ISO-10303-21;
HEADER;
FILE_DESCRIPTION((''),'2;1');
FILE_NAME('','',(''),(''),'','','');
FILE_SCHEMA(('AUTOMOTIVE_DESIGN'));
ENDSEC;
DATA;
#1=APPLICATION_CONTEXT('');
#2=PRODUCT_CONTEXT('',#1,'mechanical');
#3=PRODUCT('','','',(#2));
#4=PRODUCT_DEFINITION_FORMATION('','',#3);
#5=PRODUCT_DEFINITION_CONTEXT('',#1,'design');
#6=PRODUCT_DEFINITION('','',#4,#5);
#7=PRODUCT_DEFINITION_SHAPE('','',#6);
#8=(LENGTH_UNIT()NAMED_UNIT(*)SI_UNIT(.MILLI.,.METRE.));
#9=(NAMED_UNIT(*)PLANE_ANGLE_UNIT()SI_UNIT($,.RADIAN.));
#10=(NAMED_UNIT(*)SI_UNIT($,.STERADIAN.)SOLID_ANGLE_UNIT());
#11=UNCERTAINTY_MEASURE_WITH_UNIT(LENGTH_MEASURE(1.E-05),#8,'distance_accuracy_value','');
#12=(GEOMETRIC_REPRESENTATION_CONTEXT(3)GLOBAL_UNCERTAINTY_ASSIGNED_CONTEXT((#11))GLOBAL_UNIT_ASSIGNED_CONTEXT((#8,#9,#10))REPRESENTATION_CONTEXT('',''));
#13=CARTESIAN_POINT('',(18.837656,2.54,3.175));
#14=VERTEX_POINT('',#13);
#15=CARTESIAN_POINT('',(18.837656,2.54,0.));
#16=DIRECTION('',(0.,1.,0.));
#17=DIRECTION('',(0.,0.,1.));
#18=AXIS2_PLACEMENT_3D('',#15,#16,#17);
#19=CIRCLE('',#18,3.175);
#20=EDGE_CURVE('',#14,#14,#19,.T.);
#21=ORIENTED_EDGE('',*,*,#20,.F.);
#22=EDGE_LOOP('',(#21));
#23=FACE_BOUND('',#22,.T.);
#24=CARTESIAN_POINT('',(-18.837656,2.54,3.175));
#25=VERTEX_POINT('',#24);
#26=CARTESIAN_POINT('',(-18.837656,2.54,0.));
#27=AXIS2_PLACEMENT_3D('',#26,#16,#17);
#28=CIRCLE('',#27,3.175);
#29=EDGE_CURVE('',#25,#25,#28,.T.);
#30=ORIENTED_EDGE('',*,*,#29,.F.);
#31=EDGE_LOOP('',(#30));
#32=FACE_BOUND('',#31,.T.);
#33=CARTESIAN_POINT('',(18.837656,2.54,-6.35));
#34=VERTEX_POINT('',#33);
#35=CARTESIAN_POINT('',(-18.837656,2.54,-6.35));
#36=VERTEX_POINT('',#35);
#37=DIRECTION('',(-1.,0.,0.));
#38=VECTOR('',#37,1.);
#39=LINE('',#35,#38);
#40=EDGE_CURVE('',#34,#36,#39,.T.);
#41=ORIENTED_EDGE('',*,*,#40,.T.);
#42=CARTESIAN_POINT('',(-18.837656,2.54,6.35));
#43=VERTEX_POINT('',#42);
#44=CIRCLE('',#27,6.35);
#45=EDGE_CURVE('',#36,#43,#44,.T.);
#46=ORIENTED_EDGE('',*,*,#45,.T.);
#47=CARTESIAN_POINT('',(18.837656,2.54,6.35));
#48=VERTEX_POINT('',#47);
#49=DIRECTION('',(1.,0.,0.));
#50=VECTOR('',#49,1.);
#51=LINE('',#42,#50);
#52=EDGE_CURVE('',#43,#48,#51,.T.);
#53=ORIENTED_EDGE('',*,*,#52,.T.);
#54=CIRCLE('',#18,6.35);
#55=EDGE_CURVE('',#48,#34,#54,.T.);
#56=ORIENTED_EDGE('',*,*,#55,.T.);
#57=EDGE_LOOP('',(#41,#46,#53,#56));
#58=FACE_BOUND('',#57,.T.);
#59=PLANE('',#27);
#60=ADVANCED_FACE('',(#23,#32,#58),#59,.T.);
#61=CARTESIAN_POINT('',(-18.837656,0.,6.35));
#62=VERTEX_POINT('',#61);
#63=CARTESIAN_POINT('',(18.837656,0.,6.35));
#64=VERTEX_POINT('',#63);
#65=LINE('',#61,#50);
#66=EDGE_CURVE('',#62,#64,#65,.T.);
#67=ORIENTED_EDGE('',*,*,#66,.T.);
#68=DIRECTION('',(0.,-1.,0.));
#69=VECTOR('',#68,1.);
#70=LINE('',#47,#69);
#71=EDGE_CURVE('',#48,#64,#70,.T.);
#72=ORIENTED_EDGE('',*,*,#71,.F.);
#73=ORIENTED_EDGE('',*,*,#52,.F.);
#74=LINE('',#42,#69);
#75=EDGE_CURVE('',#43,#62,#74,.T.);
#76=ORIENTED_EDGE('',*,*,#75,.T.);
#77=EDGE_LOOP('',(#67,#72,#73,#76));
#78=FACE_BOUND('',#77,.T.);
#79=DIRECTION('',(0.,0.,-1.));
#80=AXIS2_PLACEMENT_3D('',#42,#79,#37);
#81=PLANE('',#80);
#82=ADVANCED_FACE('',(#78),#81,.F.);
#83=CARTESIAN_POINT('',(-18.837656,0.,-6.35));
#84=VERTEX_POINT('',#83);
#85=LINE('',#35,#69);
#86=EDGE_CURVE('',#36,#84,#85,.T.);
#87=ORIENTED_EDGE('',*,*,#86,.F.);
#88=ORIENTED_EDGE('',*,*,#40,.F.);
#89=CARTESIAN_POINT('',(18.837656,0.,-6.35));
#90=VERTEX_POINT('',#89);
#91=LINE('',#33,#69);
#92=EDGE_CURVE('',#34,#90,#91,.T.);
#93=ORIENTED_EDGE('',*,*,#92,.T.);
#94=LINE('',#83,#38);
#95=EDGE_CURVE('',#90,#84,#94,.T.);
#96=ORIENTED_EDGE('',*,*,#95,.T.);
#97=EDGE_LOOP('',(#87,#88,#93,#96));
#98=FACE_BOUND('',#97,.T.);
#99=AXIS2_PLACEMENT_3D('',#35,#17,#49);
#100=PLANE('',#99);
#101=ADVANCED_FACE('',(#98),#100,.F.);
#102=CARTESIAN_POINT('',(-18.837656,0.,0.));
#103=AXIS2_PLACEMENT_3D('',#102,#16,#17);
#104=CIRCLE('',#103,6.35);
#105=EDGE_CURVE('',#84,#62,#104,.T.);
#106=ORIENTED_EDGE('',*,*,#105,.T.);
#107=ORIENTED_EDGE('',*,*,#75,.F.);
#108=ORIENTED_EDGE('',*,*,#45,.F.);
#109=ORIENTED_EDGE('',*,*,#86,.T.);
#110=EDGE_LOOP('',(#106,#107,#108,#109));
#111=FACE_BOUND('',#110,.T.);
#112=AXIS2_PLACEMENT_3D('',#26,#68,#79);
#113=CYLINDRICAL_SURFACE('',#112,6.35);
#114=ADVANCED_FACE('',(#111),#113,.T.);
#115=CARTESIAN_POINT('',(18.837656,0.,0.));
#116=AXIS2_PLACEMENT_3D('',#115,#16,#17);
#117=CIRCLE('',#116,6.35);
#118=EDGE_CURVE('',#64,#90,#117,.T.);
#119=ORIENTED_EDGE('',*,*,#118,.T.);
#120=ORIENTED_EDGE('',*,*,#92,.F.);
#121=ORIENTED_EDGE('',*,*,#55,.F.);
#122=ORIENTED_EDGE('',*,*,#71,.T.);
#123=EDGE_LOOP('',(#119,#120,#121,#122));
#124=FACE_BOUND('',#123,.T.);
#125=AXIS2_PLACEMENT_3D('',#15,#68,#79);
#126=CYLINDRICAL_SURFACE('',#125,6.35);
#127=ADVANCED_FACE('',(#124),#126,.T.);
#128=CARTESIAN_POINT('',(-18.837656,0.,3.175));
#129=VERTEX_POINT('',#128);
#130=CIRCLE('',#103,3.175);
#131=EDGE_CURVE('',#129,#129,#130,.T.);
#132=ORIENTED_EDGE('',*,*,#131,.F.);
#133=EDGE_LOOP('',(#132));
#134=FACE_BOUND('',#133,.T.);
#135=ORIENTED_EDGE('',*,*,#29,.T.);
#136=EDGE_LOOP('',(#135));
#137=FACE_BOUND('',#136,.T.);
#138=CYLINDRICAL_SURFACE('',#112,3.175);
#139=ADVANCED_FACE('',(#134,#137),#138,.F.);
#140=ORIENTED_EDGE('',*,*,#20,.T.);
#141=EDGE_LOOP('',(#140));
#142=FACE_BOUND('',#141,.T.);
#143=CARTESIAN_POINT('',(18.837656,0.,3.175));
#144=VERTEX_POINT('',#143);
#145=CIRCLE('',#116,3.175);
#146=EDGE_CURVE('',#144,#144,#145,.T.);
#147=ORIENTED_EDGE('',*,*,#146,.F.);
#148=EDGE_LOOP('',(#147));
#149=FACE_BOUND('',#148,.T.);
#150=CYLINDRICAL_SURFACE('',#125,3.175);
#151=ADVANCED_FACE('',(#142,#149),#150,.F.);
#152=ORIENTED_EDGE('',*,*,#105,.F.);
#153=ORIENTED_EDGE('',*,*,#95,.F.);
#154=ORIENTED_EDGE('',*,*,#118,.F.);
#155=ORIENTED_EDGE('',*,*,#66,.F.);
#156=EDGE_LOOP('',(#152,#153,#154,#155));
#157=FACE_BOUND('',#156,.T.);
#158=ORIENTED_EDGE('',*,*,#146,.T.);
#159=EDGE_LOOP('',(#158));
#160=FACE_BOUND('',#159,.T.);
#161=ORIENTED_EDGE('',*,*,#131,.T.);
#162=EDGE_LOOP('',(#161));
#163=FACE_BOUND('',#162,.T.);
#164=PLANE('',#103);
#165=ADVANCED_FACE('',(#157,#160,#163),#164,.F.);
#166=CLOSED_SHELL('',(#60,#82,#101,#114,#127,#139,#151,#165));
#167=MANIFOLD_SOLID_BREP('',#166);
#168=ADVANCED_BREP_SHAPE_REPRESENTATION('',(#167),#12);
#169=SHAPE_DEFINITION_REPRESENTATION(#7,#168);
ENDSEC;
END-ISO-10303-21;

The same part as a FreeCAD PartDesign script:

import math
import FreeCAD as App
import Part
import Sketcher
Q = App.Units.Quantity

doc = App.newDocument("Part")
body = doc.addObject("PartDesign::Body", "Body")

# Sketch on XZ plane
sketch1 = body.newObject("Sketcher::SketchObject", "Sketch")
sketch1.AttachmentSupport = (doc.getObject("XZ_Plane"), [""])
sketch1.MapMode = "FlatFace"
sketch1.addGeometry([
    Part.LineSegment(App.Vector(18.837656, -6.35, 0), App.Vector(-18.837656, -6.35, 0)),  # 0
    Part.ArcOfCircle(Part.Circle(App.Vector(-18.837656, 0, 0), App.Vector(0, 0, 1), 6.35), math.radians(90), math.radians(270)),  # 1
    Part.LineSegment(App.Vector(-18.837656, 6.35, 0), App.Vector(18.837656, 6.35, 0)),  # 2
    Part.ArcOfCircle(Part.Circle(App.Vector(18.837656, 0, 0), App.Vector(0, 0, 1), 6.35), math.radians(-90), math.radians(90)),  # 3
    Part.Circle(App.Vector(18.837656, 0, 0), App.Vector(0, 0, 1), 3.175),  # 4
    Part.Circle(App.Vector(-18.837656, 0, 0), App.Vector(0, 0, 1), 3.175),  # 5
], False)
sketch1.addConstraint([
    Sketcher.Constraint("Tangent", 0, 2, 1, 2),
    Sketcher.Constraint("Tangent", 1, 1, 2, 1),
    Sketcher.Constraint("Tangent", 2, 2, 3, 2),
    Sketcher.Constraint("Tangent", 3, 1, 0, 1),
    Sketcher.Constraint("Horizontal", 0),
    Sketcher.Constraint("Horizontal", 2),
    Sketcher.Constraint("Coincident", 4, 3, 3, 3),
    Sketcher.Constraint("Coincident", 5, 3, 1, 3),
    Sketcher.Constraint("Equal", 4, 5),
    Sketcher.Constraint("Symmetric", 1, 3, 3, 3, -1, 1),
    Sketcher.Constraint("Diameter", 4, Q("0.25 in")),
    Sketcher.Constraint("Radius", 1, Q("0.25 in")),
    Sketcher.Constraint("DistanceX", 0, 2, 0, 1, 37.675312),
])
pad1 = body.newObject("PartDesign::Pad", "Pad")
pad1.Profile = sketch1
pad1.Length = Q("0.1 in")
pad1.Reversed = True

doc.recompute()
